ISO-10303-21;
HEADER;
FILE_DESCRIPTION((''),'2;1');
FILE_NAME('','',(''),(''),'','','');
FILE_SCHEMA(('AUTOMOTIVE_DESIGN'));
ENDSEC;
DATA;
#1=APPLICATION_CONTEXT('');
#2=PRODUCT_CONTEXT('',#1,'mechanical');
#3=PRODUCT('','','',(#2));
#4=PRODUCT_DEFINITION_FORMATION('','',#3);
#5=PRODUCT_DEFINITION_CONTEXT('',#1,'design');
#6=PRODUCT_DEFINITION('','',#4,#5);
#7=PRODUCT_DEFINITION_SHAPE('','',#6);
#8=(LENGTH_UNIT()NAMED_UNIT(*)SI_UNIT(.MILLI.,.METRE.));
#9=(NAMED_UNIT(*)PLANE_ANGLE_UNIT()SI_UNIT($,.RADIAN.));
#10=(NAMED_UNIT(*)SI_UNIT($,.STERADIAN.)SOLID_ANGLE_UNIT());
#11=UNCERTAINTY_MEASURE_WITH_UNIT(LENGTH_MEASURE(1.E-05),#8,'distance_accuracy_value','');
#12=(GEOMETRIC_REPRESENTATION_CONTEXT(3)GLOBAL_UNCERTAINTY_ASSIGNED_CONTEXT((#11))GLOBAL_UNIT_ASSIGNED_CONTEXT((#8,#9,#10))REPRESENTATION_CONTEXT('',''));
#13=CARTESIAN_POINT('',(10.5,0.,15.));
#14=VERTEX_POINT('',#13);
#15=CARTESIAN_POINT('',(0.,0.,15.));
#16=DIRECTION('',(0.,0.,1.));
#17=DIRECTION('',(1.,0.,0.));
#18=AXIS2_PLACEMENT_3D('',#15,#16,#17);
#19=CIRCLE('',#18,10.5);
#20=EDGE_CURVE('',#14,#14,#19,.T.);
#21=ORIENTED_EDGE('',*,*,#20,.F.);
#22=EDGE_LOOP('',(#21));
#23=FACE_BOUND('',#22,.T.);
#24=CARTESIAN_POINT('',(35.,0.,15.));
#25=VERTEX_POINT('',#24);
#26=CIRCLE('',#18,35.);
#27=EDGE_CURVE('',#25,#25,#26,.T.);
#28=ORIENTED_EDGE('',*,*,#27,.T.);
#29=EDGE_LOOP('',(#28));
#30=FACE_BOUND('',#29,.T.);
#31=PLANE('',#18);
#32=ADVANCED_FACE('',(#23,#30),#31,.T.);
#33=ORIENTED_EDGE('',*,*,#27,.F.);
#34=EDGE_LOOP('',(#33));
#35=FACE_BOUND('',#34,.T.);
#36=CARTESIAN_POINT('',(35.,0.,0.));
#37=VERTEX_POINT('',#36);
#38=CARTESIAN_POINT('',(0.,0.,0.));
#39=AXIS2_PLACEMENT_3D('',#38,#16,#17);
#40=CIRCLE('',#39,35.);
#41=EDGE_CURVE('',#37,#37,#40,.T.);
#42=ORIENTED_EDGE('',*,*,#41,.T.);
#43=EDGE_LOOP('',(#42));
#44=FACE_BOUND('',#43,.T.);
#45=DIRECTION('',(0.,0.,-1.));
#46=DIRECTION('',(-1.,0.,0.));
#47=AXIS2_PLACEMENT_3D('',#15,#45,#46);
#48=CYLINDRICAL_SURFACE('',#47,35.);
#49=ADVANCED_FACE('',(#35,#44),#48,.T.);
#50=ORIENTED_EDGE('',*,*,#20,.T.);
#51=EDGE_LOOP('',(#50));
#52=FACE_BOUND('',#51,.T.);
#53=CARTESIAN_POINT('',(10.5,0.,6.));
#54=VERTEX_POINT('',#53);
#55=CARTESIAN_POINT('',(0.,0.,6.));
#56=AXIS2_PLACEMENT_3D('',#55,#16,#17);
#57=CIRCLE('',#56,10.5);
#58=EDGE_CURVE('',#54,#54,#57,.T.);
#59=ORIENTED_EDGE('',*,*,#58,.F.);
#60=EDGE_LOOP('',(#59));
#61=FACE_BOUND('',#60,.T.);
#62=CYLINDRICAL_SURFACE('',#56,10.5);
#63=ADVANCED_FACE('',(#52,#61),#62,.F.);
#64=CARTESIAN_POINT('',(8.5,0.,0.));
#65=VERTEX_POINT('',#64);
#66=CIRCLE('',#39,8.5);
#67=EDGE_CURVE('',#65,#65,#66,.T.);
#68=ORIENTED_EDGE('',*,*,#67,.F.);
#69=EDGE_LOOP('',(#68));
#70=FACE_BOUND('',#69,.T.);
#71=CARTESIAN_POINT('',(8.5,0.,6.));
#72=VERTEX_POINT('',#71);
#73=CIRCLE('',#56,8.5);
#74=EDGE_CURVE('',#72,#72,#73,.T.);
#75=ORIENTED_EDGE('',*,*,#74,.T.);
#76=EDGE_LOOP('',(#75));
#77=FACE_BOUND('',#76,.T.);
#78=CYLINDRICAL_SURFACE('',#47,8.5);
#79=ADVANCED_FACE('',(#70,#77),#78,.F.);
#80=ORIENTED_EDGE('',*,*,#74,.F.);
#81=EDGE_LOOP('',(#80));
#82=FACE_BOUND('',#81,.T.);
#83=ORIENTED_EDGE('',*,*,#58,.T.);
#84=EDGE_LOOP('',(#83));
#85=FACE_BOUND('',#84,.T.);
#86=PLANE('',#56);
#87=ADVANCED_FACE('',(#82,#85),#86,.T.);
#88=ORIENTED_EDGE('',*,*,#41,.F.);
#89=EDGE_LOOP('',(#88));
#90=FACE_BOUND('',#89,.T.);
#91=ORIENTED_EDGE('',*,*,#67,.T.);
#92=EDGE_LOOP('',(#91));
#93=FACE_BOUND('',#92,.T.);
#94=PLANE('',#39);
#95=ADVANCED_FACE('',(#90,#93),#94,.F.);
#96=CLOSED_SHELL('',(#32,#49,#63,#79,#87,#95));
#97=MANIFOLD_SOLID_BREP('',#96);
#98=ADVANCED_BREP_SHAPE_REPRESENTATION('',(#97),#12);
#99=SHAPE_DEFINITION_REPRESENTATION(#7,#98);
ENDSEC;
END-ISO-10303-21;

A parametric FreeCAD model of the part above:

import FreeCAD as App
import Part
import Sketcher

doc = App.newDocument("Part")
params = doc.addObject("Spreadsheet::Sheet", "Params")
for row, (alias, value) in enumerate([
    ("sketch1_diameter", "70 mm"),
    ("sketch1_diameter2", "17 mm"),
    ("pad1_length", "15 mm"),
    ("sketch2_diameter", "21 mm"),
    ("pocket1_length", "9 mm"),
], start=1):
    params.set(f"A{row}", alias)
    params.set(f"B{row}", "=" + value)
    params.setAlias(f"B{row}", alias)

body = doc.addObject("PartDesign::Body", "Body")

# Sketch on XY plane
sketch1 = doc.addObject("Sketcher::SketchObject", "Sketch")
body.addObject(sketch1)
sketch1.AttachmentSupport = (doc.XY_Plane, [""])
sketch1.MapMode = "FlatFace"
sketch1.addGeometry(Part.Circle(App.Vector(0, 0, 0), App.Vector(0, 0, 1), 35), False)
sketch1.addGeometry(Part.Circle(App.Vector(0, 0, 0), App.Vector(0, 0, 1), 8), False)
sketch1.addConstraint(Sketcher.Constraint("Coincident", 0, 3, -1, 1))
sketch1.addConstraint(Sketcher.Constraint("Coincident", 1, 3, -1, 1))
sketch1.addConstraint(Sketcher.Constraint("Diameter", 0, 70.0))
sketch1.addConstraint(Sketcher.Constraint("Diameter", 1, 17.0))
sketch1.setExpression("Constraints[2]", "Params.sketch1_diameter")
sketch1.setExpression("Constraints[3]", "Params.sketch1_diameter2")
pad1 = doc.addObject("PartDesign::Pad", "Pad")
body.addObject(pad1)
pad1.Profile = sketch1
pad1.setExpression("Length", "Params.pad1_length")

# Sketch on XY plane
sketch2 = doc.addObject("Sketcher::SketchObject", "Sketch001")
body.addObject(sketch2)
sketch2.AttachmentSupport = (doc.XY_Plane, [""])
sketch2.MapMode = "FlatFace"
sketch2.AttachmentOffset = App.Placement(App.Vector(0, 0, 15), App.Rotation())
sketch2.addGeometry(Part.Circle(App.Vector(0, 0, 0), App.Vector(0, 0, 1), 10), False)
sketch2.addConstraint(Sketcher.Constraint("Coincident", 0, 3, -1, 1))
sketch2.addConstraint(Sketcher.Constraint("Diameter", 0, 21.0))
sketch2.setExpression("Constraints[1]", "Params.sketch2_diameter")
pocket1 = doc.addObject("PartDesign::Pocket", "Pocket")
body.addObject(pocket1)
pocket1.Profile = sketch2
pocket1.setExpression("Length", "Params.pocket1_length")

doc.recompute()
